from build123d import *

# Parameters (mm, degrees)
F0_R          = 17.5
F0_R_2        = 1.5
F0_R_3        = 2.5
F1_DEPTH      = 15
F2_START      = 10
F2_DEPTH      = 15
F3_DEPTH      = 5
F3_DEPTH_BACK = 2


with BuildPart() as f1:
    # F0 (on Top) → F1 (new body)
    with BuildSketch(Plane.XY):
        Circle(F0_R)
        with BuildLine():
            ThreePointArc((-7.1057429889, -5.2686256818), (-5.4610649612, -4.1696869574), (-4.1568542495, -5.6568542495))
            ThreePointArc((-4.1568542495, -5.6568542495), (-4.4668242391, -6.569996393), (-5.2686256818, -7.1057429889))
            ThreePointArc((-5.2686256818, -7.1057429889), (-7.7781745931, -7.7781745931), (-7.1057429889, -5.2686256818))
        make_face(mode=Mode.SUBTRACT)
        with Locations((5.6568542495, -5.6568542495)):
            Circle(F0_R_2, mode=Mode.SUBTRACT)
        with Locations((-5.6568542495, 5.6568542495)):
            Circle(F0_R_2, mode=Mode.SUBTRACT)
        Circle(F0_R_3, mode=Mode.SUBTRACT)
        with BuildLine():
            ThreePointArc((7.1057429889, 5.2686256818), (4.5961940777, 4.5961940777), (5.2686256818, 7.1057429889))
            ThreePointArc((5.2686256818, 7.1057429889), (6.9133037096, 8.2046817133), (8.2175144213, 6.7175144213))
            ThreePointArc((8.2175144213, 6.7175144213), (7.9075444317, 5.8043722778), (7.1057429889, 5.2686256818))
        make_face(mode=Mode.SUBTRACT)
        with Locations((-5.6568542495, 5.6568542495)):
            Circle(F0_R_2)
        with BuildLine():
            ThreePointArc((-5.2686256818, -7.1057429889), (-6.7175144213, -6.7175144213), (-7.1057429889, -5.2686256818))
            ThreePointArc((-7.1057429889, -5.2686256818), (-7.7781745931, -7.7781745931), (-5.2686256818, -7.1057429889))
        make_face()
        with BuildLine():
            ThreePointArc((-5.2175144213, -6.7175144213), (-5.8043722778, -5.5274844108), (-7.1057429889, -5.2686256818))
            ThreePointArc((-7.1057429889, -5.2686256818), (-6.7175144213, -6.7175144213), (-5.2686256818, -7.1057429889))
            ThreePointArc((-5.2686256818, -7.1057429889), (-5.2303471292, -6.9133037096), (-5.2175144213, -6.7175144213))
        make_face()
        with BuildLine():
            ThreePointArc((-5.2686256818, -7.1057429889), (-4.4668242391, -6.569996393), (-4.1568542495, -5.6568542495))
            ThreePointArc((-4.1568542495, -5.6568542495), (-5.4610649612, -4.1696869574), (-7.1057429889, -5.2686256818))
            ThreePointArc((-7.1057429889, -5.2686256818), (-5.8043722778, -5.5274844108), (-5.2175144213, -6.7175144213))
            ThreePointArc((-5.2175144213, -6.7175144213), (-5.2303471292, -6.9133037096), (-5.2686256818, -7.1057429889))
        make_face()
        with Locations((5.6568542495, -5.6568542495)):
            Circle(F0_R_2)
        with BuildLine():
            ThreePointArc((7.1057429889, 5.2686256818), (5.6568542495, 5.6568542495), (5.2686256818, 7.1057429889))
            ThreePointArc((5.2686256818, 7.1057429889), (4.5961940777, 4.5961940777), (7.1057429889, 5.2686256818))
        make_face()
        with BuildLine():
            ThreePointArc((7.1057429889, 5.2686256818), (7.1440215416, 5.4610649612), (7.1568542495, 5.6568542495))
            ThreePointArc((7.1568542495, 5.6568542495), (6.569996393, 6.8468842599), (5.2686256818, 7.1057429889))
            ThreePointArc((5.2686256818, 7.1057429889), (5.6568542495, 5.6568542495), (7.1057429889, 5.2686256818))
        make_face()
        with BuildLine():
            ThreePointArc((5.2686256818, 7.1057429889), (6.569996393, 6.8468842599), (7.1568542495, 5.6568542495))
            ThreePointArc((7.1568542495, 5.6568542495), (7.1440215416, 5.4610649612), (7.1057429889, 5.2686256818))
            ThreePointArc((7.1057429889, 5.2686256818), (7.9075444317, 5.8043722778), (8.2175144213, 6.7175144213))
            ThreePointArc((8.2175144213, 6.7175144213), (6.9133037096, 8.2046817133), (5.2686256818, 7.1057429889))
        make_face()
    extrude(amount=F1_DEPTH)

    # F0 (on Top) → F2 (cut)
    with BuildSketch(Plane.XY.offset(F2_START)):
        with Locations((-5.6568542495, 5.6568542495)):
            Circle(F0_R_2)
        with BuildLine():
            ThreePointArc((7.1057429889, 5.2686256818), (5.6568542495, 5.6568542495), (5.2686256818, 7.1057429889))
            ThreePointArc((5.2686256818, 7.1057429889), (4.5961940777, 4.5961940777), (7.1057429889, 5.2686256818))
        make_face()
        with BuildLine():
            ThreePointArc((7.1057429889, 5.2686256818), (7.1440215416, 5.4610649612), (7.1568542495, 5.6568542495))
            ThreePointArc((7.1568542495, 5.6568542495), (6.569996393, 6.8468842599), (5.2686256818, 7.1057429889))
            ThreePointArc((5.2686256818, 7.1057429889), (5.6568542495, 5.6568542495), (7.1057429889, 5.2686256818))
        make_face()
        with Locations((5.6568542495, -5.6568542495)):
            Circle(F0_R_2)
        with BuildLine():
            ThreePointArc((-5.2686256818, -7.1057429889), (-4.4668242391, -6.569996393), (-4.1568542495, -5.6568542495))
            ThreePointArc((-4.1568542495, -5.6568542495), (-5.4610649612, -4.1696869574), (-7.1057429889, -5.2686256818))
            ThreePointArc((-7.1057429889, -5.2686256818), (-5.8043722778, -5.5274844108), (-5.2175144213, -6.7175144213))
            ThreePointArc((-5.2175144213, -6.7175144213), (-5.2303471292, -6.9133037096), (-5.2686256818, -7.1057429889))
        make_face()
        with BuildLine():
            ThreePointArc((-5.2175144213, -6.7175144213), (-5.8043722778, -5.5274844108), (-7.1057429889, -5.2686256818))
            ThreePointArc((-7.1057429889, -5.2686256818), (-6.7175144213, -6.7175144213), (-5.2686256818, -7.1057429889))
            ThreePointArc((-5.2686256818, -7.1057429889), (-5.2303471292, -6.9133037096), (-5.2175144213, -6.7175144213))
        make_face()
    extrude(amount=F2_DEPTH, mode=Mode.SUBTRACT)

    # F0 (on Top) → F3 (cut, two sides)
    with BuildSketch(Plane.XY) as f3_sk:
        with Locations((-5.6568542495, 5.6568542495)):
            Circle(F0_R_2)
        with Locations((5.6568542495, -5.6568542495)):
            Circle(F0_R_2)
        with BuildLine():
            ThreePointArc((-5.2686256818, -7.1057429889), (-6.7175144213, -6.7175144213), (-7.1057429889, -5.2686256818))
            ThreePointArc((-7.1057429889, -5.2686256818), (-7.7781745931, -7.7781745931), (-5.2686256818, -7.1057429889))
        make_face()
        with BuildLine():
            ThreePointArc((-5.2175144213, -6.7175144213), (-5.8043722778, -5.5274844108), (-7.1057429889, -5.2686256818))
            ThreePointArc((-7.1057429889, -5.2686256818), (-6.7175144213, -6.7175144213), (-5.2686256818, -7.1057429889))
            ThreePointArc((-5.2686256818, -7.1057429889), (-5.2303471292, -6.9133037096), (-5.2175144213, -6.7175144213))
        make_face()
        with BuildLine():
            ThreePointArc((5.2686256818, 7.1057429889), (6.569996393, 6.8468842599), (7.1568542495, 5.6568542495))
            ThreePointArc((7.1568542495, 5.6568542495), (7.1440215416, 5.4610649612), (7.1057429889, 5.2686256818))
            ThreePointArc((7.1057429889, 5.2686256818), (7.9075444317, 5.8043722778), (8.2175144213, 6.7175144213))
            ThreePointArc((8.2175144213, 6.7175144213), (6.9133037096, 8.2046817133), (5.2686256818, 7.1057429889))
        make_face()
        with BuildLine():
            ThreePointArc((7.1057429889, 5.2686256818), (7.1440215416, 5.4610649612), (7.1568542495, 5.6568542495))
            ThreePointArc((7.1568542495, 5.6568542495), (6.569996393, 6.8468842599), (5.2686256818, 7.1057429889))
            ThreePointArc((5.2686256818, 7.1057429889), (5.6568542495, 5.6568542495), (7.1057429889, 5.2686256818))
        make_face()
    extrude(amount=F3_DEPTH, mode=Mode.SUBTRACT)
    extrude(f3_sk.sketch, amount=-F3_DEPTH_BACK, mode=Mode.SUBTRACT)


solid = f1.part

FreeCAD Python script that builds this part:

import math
import FreeCAD as App
import Part
import Sketcher

V = App.Vector

doc = App.newDocument("Part")
body = doc.addObject("PartDesign::Body", "Body")

# Sketch on XY plane
sketch1 = body.newObject("Sketcher::SketchObject", "Sketch")
sketch1.AttachmentSupport = (doc.getObject("XY_Plane"), [""])
sketch1.MapMode = "FlatFace"
sketch1.addGeometry([
    Part.Circle(V(0, 0, 0), V(0, 0, 1), 17.5),
    Part.Circle(V(0, 0, 0), V(0, 0, 1), 2.5),
], False)
sketch1.addConstraint([
    Sketcher.Constraint("Coincident", 0, 3, -1, 1),
    Sketcher.Constraint("Coincident", 1, 3, -1, 1),
    Sketcher.Constraint("Diameter", 0, 35.0),
    Sketcher.Constraint("Diameter", 1, 5.0),
])
pad1 = body.newObject("PartDesign::Pad", "Pad")
pad1.Profile = sketch1
pad1.Length = 15

# Sketch on XY plane
sketch2 = body.newObject("Sketcher::SketchObject", "Sketch001")
sketch2.AttachmentSupport = (doc.getObject("XY_Plane"), [""])
sketch2.MapMode = "FlatFace"
sketch2.AttachmentOffset = App.Placement(V(0, 0, 10), App.Rotation())
sketch2.addGeometry([
    Part.Circle(V(-5.66, 5.66, 0), V(0, 0, 1), 1.5),  # 0
    Part.ArcOfCircle(Part.Circle(V(5.66, 5.66, 0), V(0, 0, 1), 1.5), math.radians(105), math.radians(345)),  # 1
    Part.ArcOfCircle(Part.Circle(V(5.66, 5.66, 0), V(0, 0, 1), 1.5), math.radians(-15), math.radians(0)),  # 2
    Part.ArcOfCircle(Part.Circle(V(5.66, 5.66, 0), V(0, 0, 1), 1.5), math.radians(0), math.radians(105)),  # 3
    Part.Circle(V(5.66, -5.66, 0), V(0, 0, 1), 1.5),  # 4
    Part.ArcOfCircle(Part.Circle(V(-5.66, -5.66, 0), V(0, 0, 1), 1.5), math.radians(-75), math.radians(0)),  # 5
    Part.ArcOfCircle(Part.Circle(V(-5.66, -5.66, 0), V(0, 0, 1), 1.5), math.radians(0), math.radians(165)),  # 6
    Part.ArcOfCircle(Part.Circle(V(-5.66, -5.66, 0), V(0, 0, 1), 1.5), math.radians(165), math.radians(285)),  # 7
], False)
sketch2.addConstraint([
    Sketcher.Constraint("Tangent", 1, 2, 2, 1),
    Sketcher.Constraint("Tangent", 2, 2, 3, 1),
    Sketcher.Constraint("Tangent", 3, 2, 1, 1),
    Sketcher.Constraint("Tangent", 5, 2, 6, 1),
    Sketcher.Constraint("Tangent", 6, 2, 7, 1),
    Sketcher.Constraint("Tangent", 7, 2, 5, 1),
    Sketcher.Constraint("Equal", 0, 1),
    Sketcher.Constraint("Equal", 3, 4),
    Sketcher.Constraint("Equal", 4, 5),
    Sketcher.Constraint("Symmetric", 0, 3, 4, 3, -1, 1),
    Sketcher.Constraint("Symmetric", 1, 3, 5, 3, -1, 1),
    Sketcher.Constraint("Symmetric", 0, 3, 1, 3, -2),
    Sketcher.Constraint("Horizontal", 3, 3, 2, 2),
    Sketcher.Constraint("Horizontal", 7, 3, 5, 2),
    Sketcher.Constraint("Diameter", 0, 3.0),
    Sketcher.Constraint("DistanceX", 0, 3, 1, 3, 11.313708),
    Sketcher.Constraint("DistanceY", 4, 3, 1, 3, 11.313708),
    Sketcher.Constraint("DistanceX", 2, 3, 1, 2, 1.448889),
    Sketcher.Constraint("DistanceX", 3, 2, 1, 3, 0.388229),
    Sketcher.Constraint("DistanceX", 6, 2, 5, 3, 1.448889),
    Sketcher.Constraint("DistanceX", 7, 3, 7, 2, 0.388229),
])
pocket1 = body.newObject("PartDesign::Pocket", "Pocket")
pocket1.Profile = sketch2
pocket1.Length = 15
pocket1.Reversed = True

# Sketch on XY plane
sketch3 = body.newObject("Sketcher::SketchObject", "Sketch002")
sketch3.AttachmentSupport = (doc.getObject("XY_Plane"), [""])
sketch3.MapMode = "FlatFace"
sketch3.addGeometry([
    Part.Circle(V(-5.66, 5.66, 0), V(0, 0, 1), 1.5),  # 0
    Part.Circle(V(5.66, -5.66, 0), V(0, 0, 1), 1.5),  # 1
    Part.ArcOfCircle(Part.Circle(V(-6.72, -6.72, 0), V(0, 0, 1), 1.5), math.radians(105), math.radians(345)),  # 2
    Part.ArcOfCircle(Part.Circle(V(-6.72, -6.72, 0), V(0, 0, 1), 1.5), math.radians(-15), math.radians(0)),  # 3
    Part.ArcOfCircle(Part.Circle(V(-6.72, -6.72, 0), V(0, 0, 1), 1.5), math.radians(0), math.radians(105)),  # 4
    Part.ArcOfCircle(Part.Circle(V(6.72, 6.72, 0), V(0, 0, 1), 1.5), math.radians(-75), math.radians(0)),  # 5
    Part.ArcOfCircle(Part.Circle(V(6.72, 6.72, 0), V(0, 0, 1), 1.5), math.radians(0), math.radians(165)),  # 6
    Part.ArcOfCircle(Part.Circle(V(6.72, 6.72, 0), V(0, 0, 1), 1.5), math.radians(165), math.radians(285)),  # 7
], False)
sketch3.addConstraint([
    Sketcher.Constraint("Tangent", 2, 2, 3, 1),
    Sketcher.Constraint("Tangent", 3, 2, 4, 1),
    Sketcher.Constraint("Tangent", 4, 2, 2, 1),
    Sketcher.Constraint("Tangent", 5, 2, 6, 1),
    Sketcher.Constraint("Tangent", 6, 2, 7, 1),
    Sketcher.Constraint("Tangent", 7, 2, 5, 1),
    Sketcher.Constraint("Equal", 0, 1),
    Sketcher.Constraint("Equal", 1, 2),
    Sketcher.Constraint("Equal", 4, 5),
    Sketcher.Constraint("Symmetric", 0, 3, 1, 3, -1, 1),
    Sketcher.Constraint("Symmetric", 2, 3, 5, 3, -1, 1),
    Sketcher.Constraint("Horizontal", 4, 3, 3, 2),
    Sketcher.Constraint("Horizontal", 7, 3, 5, 2),
    Sketcher.Constraint("Diameter", 0, 3.0),
    Sketcher.Constraint("DistanceX", 0, 3, 1, 3, 11.313709),
    Sketcher.Constraint("DistanceY", 1, 3, 0, 3, 11.313709),
    Sketcher.Constraint("DistanceX", 2, 3, 0, 3, 1.06066),
    Sketcher.Constraint("DistanceY", 2, 3, 0, 3, 12.374369),
    Sketcher.Constraint("DistanceX", 3, 3, 2, 2, 1.448889),
    Sketcher.Constraint("DistanceX", 4, 2, 2, 3, 0.388229),
    Sketcher.Constraint("DistanceX", 6, 2, 5, 3, 1.448889),
    Sketcher.Constraint("DistanceX", 5, 3, 7, 2, 0.388229),
])
pocket2 = body.newObject("PartDesign::Pocket", "Pocket001")
pocket2.Profile = sketch3
pocket2.Type = "TwoLengths"
pocket2.Length = 5
pocket2.Length2 = 2
pocket2.Reversed = True

doc.recompute()
